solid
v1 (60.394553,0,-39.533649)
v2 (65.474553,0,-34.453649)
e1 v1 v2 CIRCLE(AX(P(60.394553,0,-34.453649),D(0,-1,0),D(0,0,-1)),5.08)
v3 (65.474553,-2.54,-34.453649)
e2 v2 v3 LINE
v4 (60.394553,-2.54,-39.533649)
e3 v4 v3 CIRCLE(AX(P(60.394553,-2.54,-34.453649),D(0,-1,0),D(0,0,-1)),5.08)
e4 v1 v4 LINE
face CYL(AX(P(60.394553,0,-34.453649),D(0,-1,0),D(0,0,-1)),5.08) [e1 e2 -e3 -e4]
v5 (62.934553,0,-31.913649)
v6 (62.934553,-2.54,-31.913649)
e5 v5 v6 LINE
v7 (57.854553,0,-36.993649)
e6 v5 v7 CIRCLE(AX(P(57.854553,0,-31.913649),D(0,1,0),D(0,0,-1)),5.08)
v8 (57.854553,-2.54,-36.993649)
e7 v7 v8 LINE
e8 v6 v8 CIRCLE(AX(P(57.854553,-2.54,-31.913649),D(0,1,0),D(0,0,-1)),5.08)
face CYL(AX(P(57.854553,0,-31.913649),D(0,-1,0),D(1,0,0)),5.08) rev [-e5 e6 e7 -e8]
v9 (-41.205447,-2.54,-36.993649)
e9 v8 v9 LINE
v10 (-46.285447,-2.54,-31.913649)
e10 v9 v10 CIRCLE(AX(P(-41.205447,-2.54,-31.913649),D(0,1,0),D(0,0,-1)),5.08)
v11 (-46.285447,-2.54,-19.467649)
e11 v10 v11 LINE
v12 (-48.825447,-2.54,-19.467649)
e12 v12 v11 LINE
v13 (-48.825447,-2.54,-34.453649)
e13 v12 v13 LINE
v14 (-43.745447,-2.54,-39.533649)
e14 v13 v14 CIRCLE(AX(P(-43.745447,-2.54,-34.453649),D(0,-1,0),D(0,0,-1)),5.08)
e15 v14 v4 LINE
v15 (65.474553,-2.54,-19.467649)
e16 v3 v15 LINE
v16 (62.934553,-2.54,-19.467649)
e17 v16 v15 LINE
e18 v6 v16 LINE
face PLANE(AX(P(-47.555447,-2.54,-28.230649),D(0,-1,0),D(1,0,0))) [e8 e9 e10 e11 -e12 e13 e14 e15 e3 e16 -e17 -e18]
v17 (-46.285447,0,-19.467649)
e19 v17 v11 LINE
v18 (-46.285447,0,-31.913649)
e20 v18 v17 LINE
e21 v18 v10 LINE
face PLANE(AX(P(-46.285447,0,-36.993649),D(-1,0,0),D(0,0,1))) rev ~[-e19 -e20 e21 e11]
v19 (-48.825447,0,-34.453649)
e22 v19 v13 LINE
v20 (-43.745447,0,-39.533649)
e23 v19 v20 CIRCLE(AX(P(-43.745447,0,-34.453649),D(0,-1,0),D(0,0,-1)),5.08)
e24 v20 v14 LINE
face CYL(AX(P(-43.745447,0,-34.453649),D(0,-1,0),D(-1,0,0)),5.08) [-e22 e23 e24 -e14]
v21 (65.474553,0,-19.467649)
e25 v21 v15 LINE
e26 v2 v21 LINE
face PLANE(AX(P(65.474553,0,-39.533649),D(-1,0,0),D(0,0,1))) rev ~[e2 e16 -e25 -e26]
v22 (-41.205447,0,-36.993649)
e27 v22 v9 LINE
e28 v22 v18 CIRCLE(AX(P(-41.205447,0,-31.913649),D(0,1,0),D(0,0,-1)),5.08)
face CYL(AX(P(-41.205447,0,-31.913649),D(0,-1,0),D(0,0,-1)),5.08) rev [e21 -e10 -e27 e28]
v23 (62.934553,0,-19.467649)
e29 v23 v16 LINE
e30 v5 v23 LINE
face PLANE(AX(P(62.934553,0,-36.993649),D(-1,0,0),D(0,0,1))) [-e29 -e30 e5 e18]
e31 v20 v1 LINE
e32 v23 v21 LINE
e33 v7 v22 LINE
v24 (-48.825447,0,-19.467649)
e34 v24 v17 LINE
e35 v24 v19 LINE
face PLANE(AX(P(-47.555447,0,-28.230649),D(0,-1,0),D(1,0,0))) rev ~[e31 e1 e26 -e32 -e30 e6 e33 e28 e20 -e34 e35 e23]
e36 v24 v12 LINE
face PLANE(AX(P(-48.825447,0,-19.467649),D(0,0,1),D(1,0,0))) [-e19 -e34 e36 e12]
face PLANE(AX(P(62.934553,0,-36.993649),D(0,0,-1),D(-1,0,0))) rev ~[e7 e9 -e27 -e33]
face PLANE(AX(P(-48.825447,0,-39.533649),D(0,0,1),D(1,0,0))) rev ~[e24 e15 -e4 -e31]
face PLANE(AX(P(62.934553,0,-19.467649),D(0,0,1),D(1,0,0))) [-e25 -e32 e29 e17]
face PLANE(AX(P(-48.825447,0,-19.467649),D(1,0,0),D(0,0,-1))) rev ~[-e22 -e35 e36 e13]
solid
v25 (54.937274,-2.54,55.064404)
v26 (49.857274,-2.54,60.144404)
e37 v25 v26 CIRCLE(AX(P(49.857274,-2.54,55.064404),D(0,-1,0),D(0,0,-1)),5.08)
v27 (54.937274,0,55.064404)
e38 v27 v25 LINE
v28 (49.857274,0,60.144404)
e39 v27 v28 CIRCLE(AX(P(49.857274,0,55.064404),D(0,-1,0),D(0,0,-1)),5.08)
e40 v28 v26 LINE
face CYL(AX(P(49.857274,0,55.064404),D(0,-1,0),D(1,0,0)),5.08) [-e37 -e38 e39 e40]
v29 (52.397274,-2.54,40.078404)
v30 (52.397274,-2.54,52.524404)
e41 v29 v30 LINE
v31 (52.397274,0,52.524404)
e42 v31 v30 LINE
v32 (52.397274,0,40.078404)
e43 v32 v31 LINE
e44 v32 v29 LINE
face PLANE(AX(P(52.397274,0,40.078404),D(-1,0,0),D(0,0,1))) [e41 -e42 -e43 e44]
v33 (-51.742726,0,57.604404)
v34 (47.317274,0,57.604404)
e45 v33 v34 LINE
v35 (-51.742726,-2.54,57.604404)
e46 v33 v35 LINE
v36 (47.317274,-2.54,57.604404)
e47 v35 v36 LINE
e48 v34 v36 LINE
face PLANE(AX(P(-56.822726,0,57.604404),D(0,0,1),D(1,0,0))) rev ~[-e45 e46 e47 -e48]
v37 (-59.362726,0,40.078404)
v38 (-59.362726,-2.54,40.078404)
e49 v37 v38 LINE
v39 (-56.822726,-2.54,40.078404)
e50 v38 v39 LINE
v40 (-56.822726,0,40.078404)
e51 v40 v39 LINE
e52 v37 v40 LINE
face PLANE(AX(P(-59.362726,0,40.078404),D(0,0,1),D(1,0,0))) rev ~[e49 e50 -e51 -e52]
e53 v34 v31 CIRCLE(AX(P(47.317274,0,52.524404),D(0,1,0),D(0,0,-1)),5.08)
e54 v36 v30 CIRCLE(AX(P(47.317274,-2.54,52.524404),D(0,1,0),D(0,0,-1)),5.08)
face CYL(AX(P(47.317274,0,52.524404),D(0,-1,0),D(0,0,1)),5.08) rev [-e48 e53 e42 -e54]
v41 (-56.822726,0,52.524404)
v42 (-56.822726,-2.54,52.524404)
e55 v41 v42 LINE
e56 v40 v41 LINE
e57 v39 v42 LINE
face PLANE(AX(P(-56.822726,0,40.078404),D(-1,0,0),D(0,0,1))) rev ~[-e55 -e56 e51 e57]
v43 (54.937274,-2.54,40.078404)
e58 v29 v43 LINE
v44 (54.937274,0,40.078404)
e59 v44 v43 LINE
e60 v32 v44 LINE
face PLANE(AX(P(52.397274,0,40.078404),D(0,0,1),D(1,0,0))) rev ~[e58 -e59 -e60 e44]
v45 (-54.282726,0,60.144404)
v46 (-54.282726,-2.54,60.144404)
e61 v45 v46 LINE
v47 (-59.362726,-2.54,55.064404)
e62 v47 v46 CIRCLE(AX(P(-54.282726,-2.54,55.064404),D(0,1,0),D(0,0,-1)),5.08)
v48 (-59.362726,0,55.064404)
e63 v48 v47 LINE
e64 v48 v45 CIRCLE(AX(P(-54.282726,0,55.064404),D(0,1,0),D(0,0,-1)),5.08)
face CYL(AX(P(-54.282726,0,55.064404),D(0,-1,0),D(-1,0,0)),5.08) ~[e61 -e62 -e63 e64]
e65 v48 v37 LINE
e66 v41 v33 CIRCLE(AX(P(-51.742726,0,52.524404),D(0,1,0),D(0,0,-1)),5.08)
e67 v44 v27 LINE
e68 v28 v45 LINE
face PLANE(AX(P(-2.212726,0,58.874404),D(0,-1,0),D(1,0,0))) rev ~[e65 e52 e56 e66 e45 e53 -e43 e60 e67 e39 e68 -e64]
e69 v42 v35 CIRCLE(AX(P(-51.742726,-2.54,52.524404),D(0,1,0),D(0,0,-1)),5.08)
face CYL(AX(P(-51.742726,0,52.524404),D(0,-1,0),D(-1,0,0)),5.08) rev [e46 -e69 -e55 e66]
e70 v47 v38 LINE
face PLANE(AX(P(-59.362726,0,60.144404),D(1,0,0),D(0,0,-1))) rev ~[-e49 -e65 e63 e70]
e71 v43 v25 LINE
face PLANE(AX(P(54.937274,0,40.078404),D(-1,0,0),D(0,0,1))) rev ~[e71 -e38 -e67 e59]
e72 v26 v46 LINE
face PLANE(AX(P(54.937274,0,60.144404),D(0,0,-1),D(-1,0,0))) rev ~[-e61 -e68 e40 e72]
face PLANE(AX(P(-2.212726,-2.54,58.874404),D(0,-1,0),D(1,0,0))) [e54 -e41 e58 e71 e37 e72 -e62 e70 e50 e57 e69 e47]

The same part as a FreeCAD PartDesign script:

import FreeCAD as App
import Part
import Sketcher
from FreeCAD import Vector
Q = App.Units.Quantity


def edges_at(feature, points):
    """Names of the edges that pass closest to the given points."""
    edges = feature.Shape.Edges
    near = lambda p: min(range(len(edges)), key=lambda i: edges[i].distToShape(Part.Vertex(*p))[0])
    return sorted({f"Edge{near(p) + 1}" for p in points})

doc = App.newDocument("Part")
body = doc.addObject("PartDesign::Body", "Body")
body.AllowCompound = True

# Sketch on XZ plane
sketch1 = doc.addObject("Sketcher::SketchObject", "Sketch")
body.addObject(sketch1)
sketch1.AttachmentSupport = (doc.XZ_Plane, [""])
sketch1.MapMode = "FlatFace"
sketch1.addGeometry([
    Part.LineSegment(Vector(-59.362726, 60.144404, 0), Vector(-59.362726, 40.078404, 0)),  # 0
    Part.LineSegment(Vector(-59.362726, 40.078404, 0), Vector(-56.822726, 40.078404, 0)),  # 1
    Part.LineSegment(Vector(-56.822726, 40.078404, 0), Vector(-56.822726, 57.604404, 0)),  # 2
    Part.LineSegment(Vector(-56.822726, 57.604404, 0), Vector(52.397274, 57.604404, 0)),  # 3
    Part.LineSegment(Vector(52.397274, 57.604404, 0), Vector(52.397274, 40.078404, 0)),  # 4
    Part.LineSegment(Vector(52.397274, 40.078404, 0), Vector(54.937274, 40.078404, 0)),  # 5
    Part.LineSegment(Vector(54.937274, 40.078404, 0), Vector(54.937274, 60.144404, 0)),  # 6
    Part.LineSegment(Vector(54.937274, 60.144404, 0), Vector(-59.362726, 60.144404, 0)),  # 7
    Part.LineSegment(Vector(-48.825447, -19.467649, 0), Vector(-48.825447, -39.533649, 0)),  # 8
    Part.LineSegment(Vector(-48.825447, -39.533649, 0), Vector(65.474553, -39.533649, 0)),  # 9
    Part.LineSegment(Vector(65.474553, -39.533649, 0), Vector(65.474553, -19.467649, 0)),  # 10
    Part.LineSegment(Vector(65.474553, -19.467649, 0), Vector(62.934553, -19.467649, 0)),  # 11
    Part.LineSegment(Vector(62.934553, -19.467649, 0), Vector(62.934553, -36.993649, 0)),  # 12
    Part.LineSegment(Vector(62.934553, -36.993649, 0), Vector(-46.285447, -36.993649, 0)),  # 13
    Part.LineSegment(Vector(-46.285447, -36.993649, 0), Vector(-46.285447, -19.467649, 0)),  # 14
    Part.LineSegment(Vector(-46.285447, -19.467649, 0), Vector(-48.825447, -19.467649, 0)),  # 15
], False)
sketch1.addConstraint([
    Sketcher.Constraint("Coincident", 0, 2, 1, 1),
    Sketcher.Constraint("Coincident", 1, 2, 2, 1),
    Sketcher.Constraint("Coincident", 2, 2, 3, 1),
    Sketcher.Constraint("Coincident", 3, 2, 4, 1),
    Sketcher.Constraint("Coincident", 4, 2, 5, 1),
    Sketcher.Constraint("Coincident", 5, 2, 6, 1),
    Sketcher.Constraint("Coincident", 6, 2, 7, 1),
    Sketcher.Constraint("Coincident", 7, 2, 0, 1),
    Sketcher.Constraint("Coincident", 8, 2, 9, 1),
    Sketcher.Constraint("Coincident", 9, 2, 10, 1),
    Sketcher.Constraint("Coincident", 10, 2, 11, 1),
    Sketcher.Constraint("Coincident", 11, 2, 12, 1),
    Sketcher.Constraint("Coincident", 12, 2, 13, 1),
    Sketcher.Constraint("Coincident", 13, 2, 14, 1),
    Sketcher.Constraint("Coincident", 14, 2, 15, 1),
    Sketcher.Constraint("Coincident", 15, 2, 8, 1),
    Sketcher.Constraint("Vertical", 0),
    Sketcher.Constraint("Horizontal", 1),
    Sketcher.Constraint("Vertical", 2),
    Sketcher.Constraint("Horizontal", 3),
    Sketcher.Constraint("Vertical", 4),
    Sketcher.Constraint("Horizontal", 5),
    Sketcher.Constraint("Vertical", 6),
    Sketcher.Constraint("Horizontal", 7),
    Sketcher.Constraint("Vertical", 8),
    Sketcher.Constraint("Horizontal", 9),
    Sketcher.Constraint("Vertical", 10),
    Sketcher.Constraint("Horizontal", 11),
    Sketcher.Constraint("Vertical", 12),
    Sketcher.Constraint("Horizontal", 13),
    Sketcher.Constraint("Vertical", 14),
    Sketcher.Constraint("Horizontal", 15),
    Sketcher.Constraint("Horizontal", 1, 2, 4, 2),
    Sketcher.Constraint("Horizontal", 11, 2, 14, 2),
    Sketcher.Constraint("Equal", 1, 5),
    Sketcher.Constraint("Equal", 7, 9),
    Sketcher.Constraint("Equal", 5, 11),
    Sketcher.Constraint("Equal", 3, 13),
    Sketcher.Constraint("Equal", 6, 8),
    Sketcher.Constraint("Equal", 4, 12),
    Sketcher.Constraint("DistanceX", 1, 1, 1, 2, Q("0.1 in")),
    Sketcher.Constraint("DistanceX", 3, 1, 3, 2, Q("4.3 in")),
    Sketcher.Constraint("DistanceY", 0, 2, 0, 1, Q("0.79 in")),
    Sketcher.Constraint("DistanceY", 2, 1, 2, 2, Q("0.69 in")),
    Sketcher.Constraint("DistanceY", 8, 2, -1, 1, Q("39.533649 mm")),
    Sketcher.Constraint("DistanceX", 1, 2, 8, 2, Q("7.997279 mm")),
    Sketcher.Constraint("DistanceX", 0, 2, -1, 1, Q("59.362726 mm")),
    Sketcher.Constraint("DistanceY", -1, 1, 0, 2, Q("40.078404 mm")),
])
pad1 = doc.addObject("PartDesign::Pad", "Pad")
body.addObject(pad1)
pad1.Profile = sketch1
pad1.Length = Q("0.1 in")
doc.recompute()

fillet = doc.addObject("PartDesign::Fillet", "Fillet")
body.addObject(fillet)
fillet.Base = (pad1, edges_at(pad1, [
    (-46.285, -1.27, -36.994),
    (-48.825, -1.27, -39.534),
    (62.935, -1.27, -36.994),
    (65.475, -1.27, -39.534),
    (52.397, -1.27, 57.604),
    (54.937, -1.27, 60.144),
    (-56.823, -1.27, 57.604),
    (-59.363, -1.27, 60.144),
]))
fillet.Radius = Q("0.2 in")

doc.recompute()
